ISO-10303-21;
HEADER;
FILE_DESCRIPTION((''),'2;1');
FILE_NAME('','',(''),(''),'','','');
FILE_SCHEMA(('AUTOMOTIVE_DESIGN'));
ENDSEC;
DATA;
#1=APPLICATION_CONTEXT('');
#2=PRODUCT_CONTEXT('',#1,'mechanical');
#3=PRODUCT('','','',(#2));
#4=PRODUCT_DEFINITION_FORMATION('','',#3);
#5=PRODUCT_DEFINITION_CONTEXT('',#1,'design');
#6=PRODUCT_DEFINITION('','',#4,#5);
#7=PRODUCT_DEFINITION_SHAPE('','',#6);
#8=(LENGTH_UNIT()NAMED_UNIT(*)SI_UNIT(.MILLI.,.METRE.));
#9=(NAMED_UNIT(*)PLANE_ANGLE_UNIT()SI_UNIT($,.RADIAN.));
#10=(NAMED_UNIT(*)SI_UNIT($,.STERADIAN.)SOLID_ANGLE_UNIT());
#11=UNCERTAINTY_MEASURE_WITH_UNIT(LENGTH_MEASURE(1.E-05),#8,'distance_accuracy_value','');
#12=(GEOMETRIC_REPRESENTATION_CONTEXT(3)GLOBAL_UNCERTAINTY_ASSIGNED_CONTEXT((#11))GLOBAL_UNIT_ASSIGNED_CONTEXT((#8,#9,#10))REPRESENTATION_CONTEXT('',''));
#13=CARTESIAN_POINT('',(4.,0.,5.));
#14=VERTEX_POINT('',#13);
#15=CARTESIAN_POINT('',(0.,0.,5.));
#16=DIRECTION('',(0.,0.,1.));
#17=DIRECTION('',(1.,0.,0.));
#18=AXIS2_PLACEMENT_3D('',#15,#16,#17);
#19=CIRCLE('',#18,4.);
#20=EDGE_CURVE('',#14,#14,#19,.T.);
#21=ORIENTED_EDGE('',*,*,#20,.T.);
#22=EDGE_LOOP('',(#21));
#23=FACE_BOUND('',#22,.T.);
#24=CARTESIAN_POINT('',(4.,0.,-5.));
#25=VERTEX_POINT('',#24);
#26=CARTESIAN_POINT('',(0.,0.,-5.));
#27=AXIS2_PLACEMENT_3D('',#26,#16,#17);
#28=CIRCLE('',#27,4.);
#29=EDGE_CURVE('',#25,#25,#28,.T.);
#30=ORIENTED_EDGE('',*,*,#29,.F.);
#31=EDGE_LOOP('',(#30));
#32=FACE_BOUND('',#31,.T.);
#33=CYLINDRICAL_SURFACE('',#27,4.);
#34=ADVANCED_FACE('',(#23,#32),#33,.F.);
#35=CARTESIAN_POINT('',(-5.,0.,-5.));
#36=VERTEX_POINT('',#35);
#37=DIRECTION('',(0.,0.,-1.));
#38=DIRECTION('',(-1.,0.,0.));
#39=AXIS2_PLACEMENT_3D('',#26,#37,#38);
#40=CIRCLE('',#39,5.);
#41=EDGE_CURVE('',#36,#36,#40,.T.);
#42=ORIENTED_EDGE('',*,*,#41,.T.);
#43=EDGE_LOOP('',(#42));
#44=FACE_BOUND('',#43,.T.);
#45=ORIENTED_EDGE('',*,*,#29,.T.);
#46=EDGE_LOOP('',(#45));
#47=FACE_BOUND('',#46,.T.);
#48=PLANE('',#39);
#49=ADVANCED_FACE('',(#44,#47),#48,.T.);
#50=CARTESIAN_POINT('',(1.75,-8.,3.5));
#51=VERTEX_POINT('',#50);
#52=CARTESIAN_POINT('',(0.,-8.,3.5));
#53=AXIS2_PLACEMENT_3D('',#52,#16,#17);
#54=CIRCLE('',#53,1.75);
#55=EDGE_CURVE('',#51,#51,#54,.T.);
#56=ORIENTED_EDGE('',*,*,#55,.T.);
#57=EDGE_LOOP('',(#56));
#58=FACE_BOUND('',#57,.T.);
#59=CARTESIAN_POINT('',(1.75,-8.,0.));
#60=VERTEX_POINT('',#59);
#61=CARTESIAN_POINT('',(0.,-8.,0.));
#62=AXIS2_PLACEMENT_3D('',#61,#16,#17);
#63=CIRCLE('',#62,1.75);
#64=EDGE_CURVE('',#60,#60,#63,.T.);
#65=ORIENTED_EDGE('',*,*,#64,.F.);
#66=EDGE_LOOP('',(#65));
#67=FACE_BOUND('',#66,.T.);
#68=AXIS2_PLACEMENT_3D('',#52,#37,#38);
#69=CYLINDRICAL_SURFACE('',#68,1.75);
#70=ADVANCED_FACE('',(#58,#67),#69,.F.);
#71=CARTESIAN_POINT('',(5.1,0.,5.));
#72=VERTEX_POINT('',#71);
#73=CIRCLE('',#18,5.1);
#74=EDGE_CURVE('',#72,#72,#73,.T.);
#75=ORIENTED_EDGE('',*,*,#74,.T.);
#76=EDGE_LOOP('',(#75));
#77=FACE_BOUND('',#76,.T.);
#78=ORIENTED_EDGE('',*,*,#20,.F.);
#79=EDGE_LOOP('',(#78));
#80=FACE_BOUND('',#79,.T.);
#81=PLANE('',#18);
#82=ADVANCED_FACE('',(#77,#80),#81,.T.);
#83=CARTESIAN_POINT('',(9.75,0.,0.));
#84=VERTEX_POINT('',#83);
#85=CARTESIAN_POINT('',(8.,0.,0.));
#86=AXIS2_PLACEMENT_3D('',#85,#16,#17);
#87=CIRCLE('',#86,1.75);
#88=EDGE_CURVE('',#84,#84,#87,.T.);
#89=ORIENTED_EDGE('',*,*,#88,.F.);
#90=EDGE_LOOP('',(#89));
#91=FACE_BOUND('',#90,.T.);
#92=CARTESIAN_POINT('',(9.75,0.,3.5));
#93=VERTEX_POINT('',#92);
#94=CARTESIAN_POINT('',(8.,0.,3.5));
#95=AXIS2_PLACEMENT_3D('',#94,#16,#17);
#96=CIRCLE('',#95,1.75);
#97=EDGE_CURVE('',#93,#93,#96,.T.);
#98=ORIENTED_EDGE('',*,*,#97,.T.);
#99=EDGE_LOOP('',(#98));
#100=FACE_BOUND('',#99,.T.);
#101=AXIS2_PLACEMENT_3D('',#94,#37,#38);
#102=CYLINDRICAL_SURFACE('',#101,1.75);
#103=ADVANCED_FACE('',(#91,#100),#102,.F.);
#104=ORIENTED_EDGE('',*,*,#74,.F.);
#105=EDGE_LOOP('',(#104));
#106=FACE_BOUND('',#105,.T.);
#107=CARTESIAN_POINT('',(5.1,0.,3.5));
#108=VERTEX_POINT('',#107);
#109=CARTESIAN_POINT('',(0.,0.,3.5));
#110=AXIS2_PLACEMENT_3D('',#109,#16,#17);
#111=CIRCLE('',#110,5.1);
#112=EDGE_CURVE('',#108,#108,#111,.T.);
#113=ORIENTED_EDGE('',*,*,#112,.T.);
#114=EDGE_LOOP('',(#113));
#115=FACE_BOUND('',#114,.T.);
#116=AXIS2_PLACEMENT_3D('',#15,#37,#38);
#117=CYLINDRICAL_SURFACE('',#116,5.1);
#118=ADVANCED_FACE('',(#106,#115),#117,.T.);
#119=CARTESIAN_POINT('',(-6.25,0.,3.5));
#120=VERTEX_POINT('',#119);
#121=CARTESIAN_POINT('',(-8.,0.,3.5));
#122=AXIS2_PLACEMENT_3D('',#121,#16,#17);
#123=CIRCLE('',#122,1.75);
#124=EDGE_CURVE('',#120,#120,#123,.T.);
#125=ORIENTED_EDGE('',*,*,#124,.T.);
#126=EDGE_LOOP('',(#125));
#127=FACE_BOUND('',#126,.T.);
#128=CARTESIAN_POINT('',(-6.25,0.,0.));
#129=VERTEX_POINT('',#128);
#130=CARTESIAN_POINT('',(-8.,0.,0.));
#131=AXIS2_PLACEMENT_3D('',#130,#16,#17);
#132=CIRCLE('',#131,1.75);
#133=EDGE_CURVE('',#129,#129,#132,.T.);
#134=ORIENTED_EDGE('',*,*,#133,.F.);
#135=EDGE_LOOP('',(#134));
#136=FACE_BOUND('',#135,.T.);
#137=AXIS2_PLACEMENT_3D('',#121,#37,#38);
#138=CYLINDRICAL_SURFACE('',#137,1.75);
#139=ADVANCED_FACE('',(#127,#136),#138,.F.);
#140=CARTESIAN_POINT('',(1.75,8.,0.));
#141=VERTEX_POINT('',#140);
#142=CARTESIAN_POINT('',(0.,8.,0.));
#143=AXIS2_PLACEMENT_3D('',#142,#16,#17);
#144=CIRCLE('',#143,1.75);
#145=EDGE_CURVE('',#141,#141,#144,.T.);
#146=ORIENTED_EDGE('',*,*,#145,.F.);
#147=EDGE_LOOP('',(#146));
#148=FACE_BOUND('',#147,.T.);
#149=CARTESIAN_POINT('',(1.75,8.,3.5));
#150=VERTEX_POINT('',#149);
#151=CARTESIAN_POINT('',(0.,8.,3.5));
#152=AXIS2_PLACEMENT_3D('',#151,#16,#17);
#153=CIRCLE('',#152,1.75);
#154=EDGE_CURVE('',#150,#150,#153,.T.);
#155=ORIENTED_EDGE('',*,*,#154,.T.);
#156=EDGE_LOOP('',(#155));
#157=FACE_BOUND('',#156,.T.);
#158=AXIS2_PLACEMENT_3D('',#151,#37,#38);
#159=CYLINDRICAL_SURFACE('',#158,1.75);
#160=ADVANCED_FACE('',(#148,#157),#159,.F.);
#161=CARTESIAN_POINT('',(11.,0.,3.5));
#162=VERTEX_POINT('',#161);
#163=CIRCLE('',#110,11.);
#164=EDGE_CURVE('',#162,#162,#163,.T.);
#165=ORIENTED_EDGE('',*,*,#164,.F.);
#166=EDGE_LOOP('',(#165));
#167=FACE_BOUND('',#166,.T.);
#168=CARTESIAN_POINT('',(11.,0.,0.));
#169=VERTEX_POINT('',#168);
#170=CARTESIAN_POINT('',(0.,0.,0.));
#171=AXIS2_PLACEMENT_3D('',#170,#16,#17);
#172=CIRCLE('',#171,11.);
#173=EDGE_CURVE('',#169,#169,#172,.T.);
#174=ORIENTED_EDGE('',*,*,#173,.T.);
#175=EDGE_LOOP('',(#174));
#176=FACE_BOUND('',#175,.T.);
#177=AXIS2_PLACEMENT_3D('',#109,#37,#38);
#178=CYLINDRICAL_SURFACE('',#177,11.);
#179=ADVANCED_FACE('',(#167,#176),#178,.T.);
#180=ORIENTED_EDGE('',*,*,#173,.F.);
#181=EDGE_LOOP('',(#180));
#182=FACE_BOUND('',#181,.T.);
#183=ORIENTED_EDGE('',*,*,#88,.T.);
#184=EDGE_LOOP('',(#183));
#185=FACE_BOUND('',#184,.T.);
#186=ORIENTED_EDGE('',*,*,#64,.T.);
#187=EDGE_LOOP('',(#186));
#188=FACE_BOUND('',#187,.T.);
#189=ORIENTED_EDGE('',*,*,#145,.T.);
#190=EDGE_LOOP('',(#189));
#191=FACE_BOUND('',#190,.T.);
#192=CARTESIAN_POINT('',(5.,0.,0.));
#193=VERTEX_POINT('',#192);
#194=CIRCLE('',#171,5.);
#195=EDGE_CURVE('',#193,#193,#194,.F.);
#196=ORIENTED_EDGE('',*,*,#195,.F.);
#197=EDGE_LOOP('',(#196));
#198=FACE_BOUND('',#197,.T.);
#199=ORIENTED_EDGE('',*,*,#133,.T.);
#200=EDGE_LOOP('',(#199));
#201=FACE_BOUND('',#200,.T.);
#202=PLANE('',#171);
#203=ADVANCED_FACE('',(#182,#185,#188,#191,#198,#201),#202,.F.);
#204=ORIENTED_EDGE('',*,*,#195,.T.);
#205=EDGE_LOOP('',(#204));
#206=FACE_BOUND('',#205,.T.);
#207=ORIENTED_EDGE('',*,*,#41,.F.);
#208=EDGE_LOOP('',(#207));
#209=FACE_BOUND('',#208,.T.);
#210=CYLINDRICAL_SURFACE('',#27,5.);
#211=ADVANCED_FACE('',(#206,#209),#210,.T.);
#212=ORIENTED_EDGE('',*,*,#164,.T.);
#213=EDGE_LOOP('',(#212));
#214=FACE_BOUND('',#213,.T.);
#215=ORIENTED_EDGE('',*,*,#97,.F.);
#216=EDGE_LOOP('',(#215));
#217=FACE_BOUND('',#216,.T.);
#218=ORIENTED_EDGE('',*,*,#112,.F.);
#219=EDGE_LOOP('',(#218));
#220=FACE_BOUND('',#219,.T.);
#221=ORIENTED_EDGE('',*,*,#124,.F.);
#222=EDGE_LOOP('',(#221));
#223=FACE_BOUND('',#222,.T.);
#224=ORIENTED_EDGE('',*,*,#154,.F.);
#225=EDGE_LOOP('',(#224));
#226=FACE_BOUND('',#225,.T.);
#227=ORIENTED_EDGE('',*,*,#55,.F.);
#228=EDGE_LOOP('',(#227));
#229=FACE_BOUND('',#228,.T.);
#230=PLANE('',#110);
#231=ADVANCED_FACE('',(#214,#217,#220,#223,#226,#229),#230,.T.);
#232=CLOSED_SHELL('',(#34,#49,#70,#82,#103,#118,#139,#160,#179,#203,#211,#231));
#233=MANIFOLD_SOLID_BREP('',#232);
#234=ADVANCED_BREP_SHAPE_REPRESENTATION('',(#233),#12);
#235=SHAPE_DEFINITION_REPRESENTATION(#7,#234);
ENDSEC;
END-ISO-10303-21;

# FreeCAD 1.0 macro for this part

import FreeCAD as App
import Part
import Sketcher

V = App.Vector

doc = App.newDocument("Part")
body = doc.addObject("PartDesign::Body", "Body")

sketch1 = doc.addObject("Sketcher::SketchObject", "Sketch")
body.addObject(sketch1)
sketch1.AttachmentSupport = (doc.XY_Plane, [""])
sketch1.MapMode = "FlatFace"
sketch1.addGeometry([
    Part.Circle(V(0, 0, 0), V(0, 0, 1), 11),
    Part.Circle(V(0, -8, 0), V(0, 0, 1), 1.75),
    Part.Circle(V(-8, 0, 0), V(0, 0, 1), 1.75),
    Part.Circle(V(8, 0, 0), V(0, 0, 1), 1.75),
    Part.Circle(V(0, 8, 0), V(0, 0, 1), 1.75),
], False)
sketch1.addConstraint([
    Sketcher.Constraint("Coincident", 0, 3, -1, 1),
    Sketcher.Constraint("Equal", 1, 2),
    Sketcher.Constraint("Equal", 2, 3),
    Sketcher.Constraint("Equal", 3, 4),
    Sketcher.Constraint("Symmetric", 2, 3, 3, 3, -1, 1),
    Sketcher.Constraint("Symmetric", 1, 3, 4, 3, -1, 1),
    Sketcher.Constraint("PointOnObject", 1, 3, -2),
    Sketcher.Constraint("PointOnObject", 2, 3, -1),
    Sketcher.Constraint("Diameter", 0, 22.0),
    Sketcher.Constraint("Diameter", 1, 3.5),
    Sketcher.Constraint("DistanceY", 1, 3, -1, 1, 8.0),
    Sketcher.Constraint("DistanceX", 2, 3, -1, 1, 8.0),
])
pad1 = doc.addObject("PartDesign::Pad", "Pad")
body.addObject(pad1)
pad1.Profile = sketch1
pad1.Length = 3.5

sketch2 = doc.addObject("Sketcher::SketchObject", "Sketch001")
body.addObject(sketch2)
sketch2.AttachmentSupport = (doc.XY_Plane, [""])
sketch2.MapMode = "FlatFace"
sketch2.AttachmentOffset = App.Placement(V(0, 0, 3.5), App.Rotation())
sketch2.addGeometry(Part.Circle(V(0, 0, 0), V(0, 0, 1), 5.1), False)
sketch2.addConstraint([
    Sketcher.Constraint("Coincident", 0, 3, -1, 1),
    Sketcher.Constraint("Diameter", 0, 10.2),
])
pad2 = doc.addObject("PartDesign::Pad", "Pad001")
body.addObject(pad2)
pad2.Profile = sketch2
pad2.Length = 1.5

sketch3 = doc.addObject("Sketcher::SketchObject", "Sketch002")
body.addObject(sketch3)
sketch3.AttachmentSupport = (doc.XY_Plane, [""])
sketch3.MapMode = "FlatFace"
sketch3.addGeometry(Part.Circle(V(0, 0, 0), V(0, 0, 1), 5), False)
sketch3.addConstraint([
    Sketcher.Constraint("Coincident", 0, 3, -1, 1),
    Sketcher.Constraint("Diameter", 0, 10.0),
])
pad3 = doc.addObject("PartDesign::Pad", "Pad002")
body.addObject(pad3)
pad3.Profile = sketch3
pad3.Length = 5
pad3.Reversed = True

sketch4 = doc.addObject("Sketcher::SketchObject", "Sketch003")
body.addObject(sketch4)
sketch4.AttachmentSupport = (doc.XY_Plane, [""])
sketch4.MapMode = "FlatFace"
sketch4.AttachmentOffset = App.Placement(V(0, 0, 5), App.Rotation())
sketch4.addGeometry(Part.Circle(V(0, 0, 0), V(0, 0, 1), 4), False)
sketch4.addConstraint([
    Sketcher.Constraint("Coincident", 0, 3, -1, 1),
    Sketcher.Constraint("Diameter", 0, 8.0),
])
pocket1 = doc.addObject("PartDesign::Pocket", "Pocket")
body.addObject(pocket1)
pocket1.Profile = sketch4
pocket1.Type = "ThroughAll"

doc.recompute()
